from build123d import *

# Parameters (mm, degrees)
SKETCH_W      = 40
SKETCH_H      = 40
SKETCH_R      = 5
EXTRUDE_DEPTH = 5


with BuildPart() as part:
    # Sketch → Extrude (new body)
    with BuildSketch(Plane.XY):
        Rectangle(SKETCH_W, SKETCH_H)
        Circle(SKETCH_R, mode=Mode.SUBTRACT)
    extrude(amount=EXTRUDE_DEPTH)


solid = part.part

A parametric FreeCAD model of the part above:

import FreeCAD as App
import Part
import Sketcher

V = App.Vector
Q = App.Units.Quantity


def add_polygon(sketch, points):
    """Adds a closed chain of lines whose ends are joined by coincident constraints."""
    first, n = sketch.GeometryCount, len(points)
    for a, b in zip(points, points[1:] + points[:1]):
        sketch.addGeometry(Part.LineSegment(App.Vector(*a, 0), App.Vector(*b, 0)), False)
    for i in range(n):
        sketch.addConstraint(Sketcher.Constraint("Coincident", first + i, 2, first + (i + 1) % n, 1))

doc = App.newDocument("Part")
body = doc.addObject("PartDesign::Body", "Body")

sketch1 = body.newObject("Sketcher::SketchObject", "Sketch")
sketch1.AttachmentSupport = (doc.getObject("XY_Plane"), [""])
sketch1.MapMode = "FlatFace"
add_polygon(sketch1, [(-20, 20), (-20, -20), (20, -20), (20, 20)])
sketch1.addGeometry(Part.Circle(V(0, 0, 0), V(0, 0, 1), 5), False)
sketch1.addConstraint([
    Sketcher.Constraint("Vertical", 0),
    Sketcher.Constraint("Horizontal", 1),
    Sketcher.Constraint("Vertical", 2),
    Sketcher.Constraint("Horizontal", 3),
    Sketcher.Constraint("Coincident", 4, 3, -1, 1),
    Sketcher.Constraint("Symmetric", 0, 2, 2, 2, -1, 1),
    Sketcher.Constraint("Equal", 3, 0),
    Sketcher.Constraint("Diameter", 4, Q("10 mm")),
    Sketcher.Constraint("DistanceX", 1, 1, 1, 2, Q("40 mm")),
])
pad1 = body.newObject("PartDesign::Pad", "Pad")
pad1.Profile = sketch1
pad1.Length = 5

doc.recompute()
